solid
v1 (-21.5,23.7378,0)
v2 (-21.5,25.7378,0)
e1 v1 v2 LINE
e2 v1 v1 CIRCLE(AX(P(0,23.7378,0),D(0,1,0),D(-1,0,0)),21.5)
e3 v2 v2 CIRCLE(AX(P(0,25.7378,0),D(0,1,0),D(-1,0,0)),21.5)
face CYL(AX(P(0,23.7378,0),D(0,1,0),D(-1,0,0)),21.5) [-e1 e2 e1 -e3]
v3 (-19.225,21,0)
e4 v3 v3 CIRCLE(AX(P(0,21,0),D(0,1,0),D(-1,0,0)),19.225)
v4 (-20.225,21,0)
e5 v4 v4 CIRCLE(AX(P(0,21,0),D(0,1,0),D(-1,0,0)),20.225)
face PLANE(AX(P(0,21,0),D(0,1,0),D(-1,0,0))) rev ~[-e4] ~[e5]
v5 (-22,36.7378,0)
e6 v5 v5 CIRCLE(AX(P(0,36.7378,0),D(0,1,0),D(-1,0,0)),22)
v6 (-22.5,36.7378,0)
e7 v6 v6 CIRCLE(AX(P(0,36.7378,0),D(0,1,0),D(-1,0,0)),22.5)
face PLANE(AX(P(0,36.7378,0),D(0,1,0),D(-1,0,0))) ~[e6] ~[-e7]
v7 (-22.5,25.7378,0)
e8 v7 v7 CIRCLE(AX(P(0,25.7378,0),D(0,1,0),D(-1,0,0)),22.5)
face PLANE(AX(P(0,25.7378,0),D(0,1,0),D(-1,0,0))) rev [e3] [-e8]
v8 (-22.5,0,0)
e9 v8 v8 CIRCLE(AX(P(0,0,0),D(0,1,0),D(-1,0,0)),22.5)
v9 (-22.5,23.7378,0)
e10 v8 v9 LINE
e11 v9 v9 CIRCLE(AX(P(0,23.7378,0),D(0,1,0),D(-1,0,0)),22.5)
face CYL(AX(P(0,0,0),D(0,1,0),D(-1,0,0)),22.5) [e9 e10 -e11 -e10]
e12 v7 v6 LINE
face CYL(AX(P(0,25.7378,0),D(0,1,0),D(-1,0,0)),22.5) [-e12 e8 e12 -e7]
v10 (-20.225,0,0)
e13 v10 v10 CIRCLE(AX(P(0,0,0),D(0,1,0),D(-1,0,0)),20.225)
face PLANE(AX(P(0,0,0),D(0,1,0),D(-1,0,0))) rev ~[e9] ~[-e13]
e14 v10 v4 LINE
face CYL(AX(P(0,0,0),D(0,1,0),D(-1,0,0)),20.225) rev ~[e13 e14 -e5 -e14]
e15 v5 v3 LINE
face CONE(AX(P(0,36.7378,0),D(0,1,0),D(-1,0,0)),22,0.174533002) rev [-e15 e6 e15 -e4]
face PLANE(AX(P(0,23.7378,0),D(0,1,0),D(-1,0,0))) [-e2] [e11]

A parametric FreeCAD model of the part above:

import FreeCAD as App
import Part
import Sketcher

V = App.Vector
Q = App.Units.Quantity


def add_polygon(sketch, points):
    """Adds a closed chain of lines whose ends are joined by coincident constraints."""
    first, n = sketch.GeometryCount, len(points)
    for a, b in zip(points, points[1:] + points[:1]):
        sketch.addGeometry(Part.LineSegment(App.Vector(*a, 0), App.Vector(*b, 0)), False)
    for i in range(n):
        sketch.addConstraint(Sketcher.Constraint("Coincident", first + i, 2, first + (i + 1) % n, 1))

doc = App.newDocument("Part")
params = doc.addObject("Spreadsheet::Sheet", "Params")
for row, (alias, value) in enumerate([
    ("sketch1_width", "1 mm"),
    ("sketch1_height", "11 mm"),
    ("sketch1_height2", "2 mm"),
    ("sketch1_height3", "21 mm"),
    ("sketch1_width2", "0.5 mm"),
    ("revolution_angle", "360 deg"),
], start=1):
    params.set(f"A{row}", alias)
    params.set(f"B{row}", "=" + value)
    params.setAlias(f"B{row}", alias)

body = doc.addObject("PartDesign::Body", "Body")

sketch1 = doc.addObject("Sketcher::SketchObject", "Sketch")
body.addObject(sketch1)
sketch1.AttachmentSupport = (doc.XY_Plane, [""])
sketch1.MapMode = "FlatFace"
add_polygon(sketch1, [(-19.2, 21), (-22, 36.7), (-22.5, 36.7), (-22.5, 25.7), (-21.5, 25.7), (-21.5, 23.7), (-22.5, 23.7), (-22.5, 0), (-20.2, 0), (-20.2, 21)])
sketch1.addConstraint([
    Sketcher.Constraint("Horizontal", 1),
    Sketcher.Constraint("Vertical", 2),
    Sketcher.Constraint("Horizontal", 3),
    Sketcher.Constraint("Vertical", 4),
    Sketcher.Constraint("Horizontal", 5),
    Sketcher.Constraint("Vertical", 6),
    Sketcher.Constraint("Horizontal", 7),
    Sketcher.Constraint("Vertical", 8),
    Sketcher.Constraint("Horizontal", 9),
    Sketcher.Constraint("PointOnObject", 6, 2, -1),
    Sketcher.Constraint("Vertical", 2, 2, 5, 2),
    Sketcher.Constraint("Equal", 5, 9),
    Sketcher.Constraint("DistanceX", 3, 1, 3, 2, 1.0),
    Sketcher.Constraint("DistanceY", 2, 2, 2, 1, 11.0),
    Sketcher.Constraint("DistanceY", 4, 2, 4, 1, 2.0),
    Sketcher.Constraint("DistanceY", 8, 1, 8, 2, 21.0),
    Sketcher.Constraint("DistanceX", 1, 2, 1, 1, 0.5),
    Sketcher.Constraint("DistanceX", 1, 2, -1, 1, 22.5),
    Sketcher.Constraint("Angle", 0, Q("100 deg")),
    Sketcher.Constraint("DistanceX", 7, 1, 7, 2, 2.275),
])
sketch1.setExpression("Constraints[22]", "Params.sketch1_width")
sketch1.setExpression("Constraints[23]", "Params.sketch1_height")
sketch1.setExpression("Constraints[24]", "Params.sketch1_height2")
sketch1.setExpression("Constraints[25]", "Params.sketch1_height3")
sketch1.setExpression("Constraints[26]", "Params.sketch1_width2")
revolution = doc.addObject("PartDesign::Revolution", "Revolution")
body.addObject(revolution)
revolution.Profile = sketch1
revolution.ReferenceAxis = (sketch1, ["V_Axis"])
revolution.setExpression("Angle", "Params.revolution_angle")

doc.recompute()
